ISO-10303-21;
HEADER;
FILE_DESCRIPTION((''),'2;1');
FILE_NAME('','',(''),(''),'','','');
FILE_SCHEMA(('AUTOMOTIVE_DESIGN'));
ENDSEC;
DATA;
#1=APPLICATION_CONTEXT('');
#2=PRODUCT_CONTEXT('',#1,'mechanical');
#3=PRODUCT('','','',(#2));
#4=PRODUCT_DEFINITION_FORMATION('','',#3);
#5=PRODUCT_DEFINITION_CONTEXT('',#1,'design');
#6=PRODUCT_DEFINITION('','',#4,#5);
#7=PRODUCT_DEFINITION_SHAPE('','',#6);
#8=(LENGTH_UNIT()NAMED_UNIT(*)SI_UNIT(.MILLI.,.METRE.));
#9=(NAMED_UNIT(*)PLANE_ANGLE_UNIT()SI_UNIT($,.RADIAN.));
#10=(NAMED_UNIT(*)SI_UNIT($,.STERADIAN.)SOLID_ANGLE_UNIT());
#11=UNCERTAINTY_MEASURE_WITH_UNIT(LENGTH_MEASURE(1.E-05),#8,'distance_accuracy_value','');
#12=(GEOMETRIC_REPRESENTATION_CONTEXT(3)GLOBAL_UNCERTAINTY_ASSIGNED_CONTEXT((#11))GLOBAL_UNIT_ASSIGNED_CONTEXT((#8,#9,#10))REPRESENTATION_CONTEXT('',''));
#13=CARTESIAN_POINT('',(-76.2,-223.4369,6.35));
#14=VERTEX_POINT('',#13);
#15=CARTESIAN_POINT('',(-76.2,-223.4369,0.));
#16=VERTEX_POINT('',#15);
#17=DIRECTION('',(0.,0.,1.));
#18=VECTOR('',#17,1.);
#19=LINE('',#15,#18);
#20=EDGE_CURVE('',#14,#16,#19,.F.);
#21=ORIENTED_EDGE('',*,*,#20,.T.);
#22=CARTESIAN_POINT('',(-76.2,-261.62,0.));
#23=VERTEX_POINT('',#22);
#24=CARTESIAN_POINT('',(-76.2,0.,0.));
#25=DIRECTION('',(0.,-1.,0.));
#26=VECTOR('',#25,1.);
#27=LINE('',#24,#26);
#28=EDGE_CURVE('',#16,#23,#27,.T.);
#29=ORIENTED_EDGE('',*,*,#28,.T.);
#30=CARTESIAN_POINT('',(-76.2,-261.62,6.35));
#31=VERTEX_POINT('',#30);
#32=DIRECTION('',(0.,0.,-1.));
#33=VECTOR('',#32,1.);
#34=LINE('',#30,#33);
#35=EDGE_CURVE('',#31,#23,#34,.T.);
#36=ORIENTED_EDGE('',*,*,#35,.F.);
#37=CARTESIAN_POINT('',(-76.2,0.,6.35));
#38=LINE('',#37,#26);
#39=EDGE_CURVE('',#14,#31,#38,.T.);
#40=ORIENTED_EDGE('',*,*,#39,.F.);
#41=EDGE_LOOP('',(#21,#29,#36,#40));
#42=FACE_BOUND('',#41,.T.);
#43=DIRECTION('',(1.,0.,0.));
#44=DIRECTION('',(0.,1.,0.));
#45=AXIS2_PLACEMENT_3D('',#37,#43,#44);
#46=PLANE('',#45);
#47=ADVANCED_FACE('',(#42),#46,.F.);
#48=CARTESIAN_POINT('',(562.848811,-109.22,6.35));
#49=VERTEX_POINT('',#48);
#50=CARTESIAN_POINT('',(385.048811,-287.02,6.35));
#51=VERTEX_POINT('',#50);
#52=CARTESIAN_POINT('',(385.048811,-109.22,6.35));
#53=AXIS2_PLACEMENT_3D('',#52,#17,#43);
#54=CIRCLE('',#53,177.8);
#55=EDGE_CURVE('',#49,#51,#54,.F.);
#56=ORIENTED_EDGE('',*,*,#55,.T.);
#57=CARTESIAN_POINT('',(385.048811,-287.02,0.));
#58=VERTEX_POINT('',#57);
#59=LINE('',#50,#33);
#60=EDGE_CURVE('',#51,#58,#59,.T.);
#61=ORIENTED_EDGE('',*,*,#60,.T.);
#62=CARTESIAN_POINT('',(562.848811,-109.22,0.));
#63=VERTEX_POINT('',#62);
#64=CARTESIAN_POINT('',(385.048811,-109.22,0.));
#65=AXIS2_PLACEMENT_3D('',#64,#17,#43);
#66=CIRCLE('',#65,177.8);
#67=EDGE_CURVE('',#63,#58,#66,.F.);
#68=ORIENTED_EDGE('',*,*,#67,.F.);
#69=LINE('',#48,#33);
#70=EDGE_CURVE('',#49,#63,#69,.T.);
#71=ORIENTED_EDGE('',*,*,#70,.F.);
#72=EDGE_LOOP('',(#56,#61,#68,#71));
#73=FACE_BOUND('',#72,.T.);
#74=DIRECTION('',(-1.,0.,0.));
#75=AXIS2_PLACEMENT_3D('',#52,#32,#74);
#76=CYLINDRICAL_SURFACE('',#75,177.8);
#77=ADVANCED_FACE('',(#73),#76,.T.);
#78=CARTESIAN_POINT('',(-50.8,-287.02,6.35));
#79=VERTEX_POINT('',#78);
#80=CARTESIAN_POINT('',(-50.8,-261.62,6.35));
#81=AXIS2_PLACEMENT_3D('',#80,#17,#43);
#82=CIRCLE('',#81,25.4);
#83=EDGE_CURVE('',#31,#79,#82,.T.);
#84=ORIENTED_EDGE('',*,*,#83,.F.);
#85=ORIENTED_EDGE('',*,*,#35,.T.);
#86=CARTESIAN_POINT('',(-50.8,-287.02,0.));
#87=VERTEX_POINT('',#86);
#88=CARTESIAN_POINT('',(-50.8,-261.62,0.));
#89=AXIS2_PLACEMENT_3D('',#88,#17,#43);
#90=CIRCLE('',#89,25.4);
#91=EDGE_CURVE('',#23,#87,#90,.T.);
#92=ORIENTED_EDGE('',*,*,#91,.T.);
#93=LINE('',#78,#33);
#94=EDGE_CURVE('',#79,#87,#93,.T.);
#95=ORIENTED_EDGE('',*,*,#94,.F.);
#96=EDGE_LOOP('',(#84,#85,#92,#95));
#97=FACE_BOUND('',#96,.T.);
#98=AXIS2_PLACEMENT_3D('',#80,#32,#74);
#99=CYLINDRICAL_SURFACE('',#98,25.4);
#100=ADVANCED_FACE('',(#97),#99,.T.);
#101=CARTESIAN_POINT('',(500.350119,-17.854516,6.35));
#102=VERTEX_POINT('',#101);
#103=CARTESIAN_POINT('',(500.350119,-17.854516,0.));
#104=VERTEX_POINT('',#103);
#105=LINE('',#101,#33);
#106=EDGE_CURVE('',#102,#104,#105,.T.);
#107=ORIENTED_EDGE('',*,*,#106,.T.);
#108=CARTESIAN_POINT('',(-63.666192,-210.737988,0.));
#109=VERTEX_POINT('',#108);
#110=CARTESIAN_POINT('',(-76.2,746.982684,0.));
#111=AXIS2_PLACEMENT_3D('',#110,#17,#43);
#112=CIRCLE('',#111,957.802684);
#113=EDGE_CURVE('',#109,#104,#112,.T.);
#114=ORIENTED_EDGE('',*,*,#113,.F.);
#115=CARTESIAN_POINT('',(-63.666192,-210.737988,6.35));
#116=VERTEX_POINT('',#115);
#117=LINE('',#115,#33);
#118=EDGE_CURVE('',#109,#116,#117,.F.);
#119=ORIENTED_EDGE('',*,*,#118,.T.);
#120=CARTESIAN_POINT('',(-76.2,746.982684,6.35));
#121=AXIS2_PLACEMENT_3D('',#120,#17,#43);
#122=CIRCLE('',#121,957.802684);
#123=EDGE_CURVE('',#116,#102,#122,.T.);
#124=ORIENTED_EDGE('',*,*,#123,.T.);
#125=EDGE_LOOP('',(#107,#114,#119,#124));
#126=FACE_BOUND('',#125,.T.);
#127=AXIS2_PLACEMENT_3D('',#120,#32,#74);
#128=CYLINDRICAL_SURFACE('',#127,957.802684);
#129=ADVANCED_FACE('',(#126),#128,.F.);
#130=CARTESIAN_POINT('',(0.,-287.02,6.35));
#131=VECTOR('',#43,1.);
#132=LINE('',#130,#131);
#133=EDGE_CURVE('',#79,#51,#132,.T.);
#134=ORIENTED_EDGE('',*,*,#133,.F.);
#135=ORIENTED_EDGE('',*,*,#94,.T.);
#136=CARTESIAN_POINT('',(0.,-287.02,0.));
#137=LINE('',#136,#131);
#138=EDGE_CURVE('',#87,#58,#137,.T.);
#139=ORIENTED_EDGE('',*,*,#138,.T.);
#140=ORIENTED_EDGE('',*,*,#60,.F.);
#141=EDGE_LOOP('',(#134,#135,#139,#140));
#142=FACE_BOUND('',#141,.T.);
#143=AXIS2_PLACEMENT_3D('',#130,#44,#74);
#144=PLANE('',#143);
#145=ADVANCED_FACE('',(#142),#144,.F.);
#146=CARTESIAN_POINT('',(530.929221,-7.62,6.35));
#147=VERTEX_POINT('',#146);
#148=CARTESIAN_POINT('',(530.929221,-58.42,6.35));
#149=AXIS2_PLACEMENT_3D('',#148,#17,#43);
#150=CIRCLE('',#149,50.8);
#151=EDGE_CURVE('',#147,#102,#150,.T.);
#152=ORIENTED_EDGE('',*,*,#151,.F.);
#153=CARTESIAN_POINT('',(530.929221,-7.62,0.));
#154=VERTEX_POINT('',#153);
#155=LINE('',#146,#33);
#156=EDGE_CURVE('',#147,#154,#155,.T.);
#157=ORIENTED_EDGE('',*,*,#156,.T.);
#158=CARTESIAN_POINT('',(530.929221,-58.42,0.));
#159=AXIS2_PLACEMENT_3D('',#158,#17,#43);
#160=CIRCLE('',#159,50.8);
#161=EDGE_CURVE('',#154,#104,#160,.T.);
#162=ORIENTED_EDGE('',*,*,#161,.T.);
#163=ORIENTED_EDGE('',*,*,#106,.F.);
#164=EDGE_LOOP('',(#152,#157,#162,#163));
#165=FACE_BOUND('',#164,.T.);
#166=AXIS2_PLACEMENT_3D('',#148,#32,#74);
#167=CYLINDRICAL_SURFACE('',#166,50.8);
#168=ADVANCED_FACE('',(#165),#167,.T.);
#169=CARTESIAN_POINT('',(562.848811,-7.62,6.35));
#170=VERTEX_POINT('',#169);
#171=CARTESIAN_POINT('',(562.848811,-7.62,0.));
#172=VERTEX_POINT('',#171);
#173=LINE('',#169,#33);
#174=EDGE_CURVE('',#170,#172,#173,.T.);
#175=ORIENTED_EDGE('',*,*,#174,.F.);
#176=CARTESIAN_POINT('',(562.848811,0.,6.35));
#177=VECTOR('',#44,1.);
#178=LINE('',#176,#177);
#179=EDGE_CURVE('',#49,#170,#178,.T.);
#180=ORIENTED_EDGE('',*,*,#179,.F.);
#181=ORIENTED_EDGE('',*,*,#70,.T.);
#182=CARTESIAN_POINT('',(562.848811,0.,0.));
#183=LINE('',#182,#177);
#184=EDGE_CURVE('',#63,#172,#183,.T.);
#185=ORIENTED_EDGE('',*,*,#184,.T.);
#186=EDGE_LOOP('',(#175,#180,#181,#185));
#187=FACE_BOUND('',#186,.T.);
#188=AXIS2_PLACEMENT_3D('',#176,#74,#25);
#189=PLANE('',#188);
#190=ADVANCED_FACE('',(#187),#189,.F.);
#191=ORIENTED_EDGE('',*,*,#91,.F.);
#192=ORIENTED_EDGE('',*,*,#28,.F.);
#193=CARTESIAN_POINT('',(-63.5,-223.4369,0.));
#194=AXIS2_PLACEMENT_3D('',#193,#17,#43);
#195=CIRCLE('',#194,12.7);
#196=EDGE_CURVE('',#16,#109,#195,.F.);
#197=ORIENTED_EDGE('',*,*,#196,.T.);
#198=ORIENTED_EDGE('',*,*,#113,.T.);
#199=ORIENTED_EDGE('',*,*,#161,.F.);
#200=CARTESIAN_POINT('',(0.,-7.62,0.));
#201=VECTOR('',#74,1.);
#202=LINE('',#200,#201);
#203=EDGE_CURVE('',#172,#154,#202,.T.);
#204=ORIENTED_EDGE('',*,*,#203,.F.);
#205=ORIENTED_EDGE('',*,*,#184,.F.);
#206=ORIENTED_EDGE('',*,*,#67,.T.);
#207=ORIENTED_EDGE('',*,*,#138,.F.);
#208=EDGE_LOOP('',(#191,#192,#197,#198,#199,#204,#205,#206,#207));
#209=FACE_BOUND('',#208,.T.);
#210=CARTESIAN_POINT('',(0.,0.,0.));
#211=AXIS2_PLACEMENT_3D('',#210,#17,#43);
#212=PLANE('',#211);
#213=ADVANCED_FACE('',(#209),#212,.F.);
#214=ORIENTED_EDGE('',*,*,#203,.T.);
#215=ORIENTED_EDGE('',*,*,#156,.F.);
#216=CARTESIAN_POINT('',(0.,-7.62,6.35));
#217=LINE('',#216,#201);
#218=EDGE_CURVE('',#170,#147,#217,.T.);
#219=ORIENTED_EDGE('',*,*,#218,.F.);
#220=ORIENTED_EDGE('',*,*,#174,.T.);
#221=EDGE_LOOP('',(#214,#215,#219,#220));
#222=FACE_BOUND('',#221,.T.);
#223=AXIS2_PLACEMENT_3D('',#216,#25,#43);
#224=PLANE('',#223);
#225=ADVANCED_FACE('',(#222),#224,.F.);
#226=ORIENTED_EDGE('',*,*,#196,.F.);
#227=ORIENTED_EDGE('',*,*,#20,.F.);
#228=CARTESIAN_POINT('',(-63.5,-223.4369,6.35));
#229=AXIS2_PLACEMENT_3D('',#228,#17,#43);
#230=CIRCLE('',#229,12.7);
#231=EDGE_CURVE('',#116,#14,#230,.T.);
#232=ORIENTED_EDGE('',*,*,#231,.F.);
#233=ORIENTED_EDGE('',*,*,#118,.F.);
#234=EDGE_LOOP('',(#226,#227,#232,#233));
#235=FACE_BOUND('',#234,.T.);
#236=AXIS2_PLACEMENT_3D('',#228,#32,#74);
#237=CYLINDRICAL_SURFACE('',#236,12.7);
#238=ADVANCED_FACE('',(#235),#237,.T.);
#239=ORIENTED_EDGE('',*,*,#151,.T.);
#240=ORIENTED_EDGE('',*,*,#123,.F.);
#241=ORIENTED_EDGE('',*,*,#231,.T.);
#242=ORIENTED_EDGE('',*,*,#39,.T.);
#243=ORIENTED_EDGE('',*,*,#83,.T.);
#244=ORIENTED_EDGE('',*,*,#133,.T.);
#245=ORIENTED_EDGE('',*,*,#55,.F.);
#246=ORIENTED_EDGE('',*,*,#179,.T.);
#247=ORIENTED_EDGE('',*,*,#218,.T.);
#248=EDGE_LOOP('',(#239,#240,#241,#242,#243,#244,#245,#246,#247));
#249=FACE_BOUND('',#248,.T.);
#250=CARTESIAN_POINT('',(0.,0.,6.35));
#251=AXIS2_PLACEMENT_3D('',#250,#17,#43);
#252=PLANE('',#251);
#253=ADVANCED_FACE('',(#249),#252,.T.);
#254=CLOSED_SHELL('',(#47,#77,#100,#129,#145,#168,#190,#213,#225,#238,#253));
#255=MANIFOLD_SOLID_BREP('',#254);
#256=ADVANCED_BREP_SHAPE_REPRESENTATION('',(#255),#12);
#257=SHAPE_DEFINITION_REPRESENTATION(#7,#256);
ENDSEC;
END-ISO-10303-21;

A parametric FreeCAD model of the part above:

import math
import FreeCAD as App
import Part
import Sketcher
Q = App.Units.Quantity


def edges_at(feature, points):
    """Names of the edges that pass closest to the given points."""
    edges = feature.Shape.Edges
    near = lambda p: min(range(len(edges)), key=lambda i: edges[i].distToShape(Part.Vertex(*p))[0])
    return sorted({f"Edge{near(p) + 1}" for p in points})

doc = App.newDocument("Part")
body = doc.addObject("PartDesign::Body", "Body")

# Sketch on XY plane
sketch1 = body.newObject("Sketcher::SketchObject", "Sketch")
sketch1.AttachmentSupport = (doc.getObject("XY_Plane"), [""])
sketch1.MapMode = "FlatFace"
sketch1.addGeometry(Part.LineSegment(App.Vector(-76, -211, 0), App.Vector(-76, -262, 0)), False)
sketch1.addGeometry(Part.ArcOfCircle(Part.Circle(App.Vector(-51, -262, 0), App.Vector(0, 0, 1), 25), math.radians(180), math.radians(270)), False)
sketch1.addGeometry(Part.LineSegment(App.Vector(-51, -287, 0), App.Vector(385, -287, 0)), False)
sketch1.addGeometry(Part.ArcOfCircle(Part.Circle(App.Vector(385, -109, 0), App.Vector(0, 0, 1), 178), math.radians(-90), math.radians(0)), False)
sketch1.addGeometry(Part.LineSegment(App.Vector(563, -109, 0), App.Vector(563, -8, 0)), False)
sketch1.addGeometry(Part.LineSegment(App.Vector(563, -8, 0), App.Vector(531, -8, 0)), False)
sketch1.addGeometry(Part.ArcOfCircle(Part.Circle(App.Vector(531, -58, 0), App.Vector(0, 0, 1), 51), math.radians(90), math.radians(127)), False)
sketch1.addGeometry(Part.ArcOfCircle(Part.Circle(App.Vector(-76, 747, 0), App.Vector(0, 0, 1), 958), math.radians(-90), math.radians(-53)), False)
sketch1.addConstraint(Sketcher.Constraint("Tangent", 0, 2, 1, 1))
sketch1.addConstraint(Sketcher.Constraint("Tangent", 1, 2, 2, 1))
sketch1.addConstraint(Sketcher.Constraint("Tangent", 2, 2, 3, 1))
sketch1.addConstraint(Sketcher.Constraint("Tangent", 3, 2, 4, 1))
sketch1.addConstraint(Sketcher.Constraint("Coincident", 4, 2, 5, 1))
sketch1.addConstraint(Sketcher.Constraint("Tangent", 5, 2, 6, 1))
sketch1.addConstraint(Sketcher.Constraint("Tangent", 6, 2, 7, 2))
sketch1.addConstraint(Sketcher.Constraint("Coincident", 7, 1, 0, 1))
sketch1.addConstraint(Sketcher.Constraint("Vertical", 0))
sketch1.addConstraint(Sketcher.Constraint("Horizontal", 2))
sketch1.addConstraint(Sketcher.Constraint("Vertical", 4))
sketch1.addConstraint(Sketcher.Constraint("Horizontal", 5))
sketch1.addConstraint(Sketcher.Constraint("Vertical", 7, 3, 0, 2))
sketch1.addConstraint(Sketcher.Constraint("Radius", 1, Q("1 in")))
sketch1.addConstraint(Sketcher.Constraint("Radius", 3, Q("7 in")))
sketch1.addConstraint(Sketcher.Constraint("Radius", 6, Q("2 in")))
sketch1.addConstraint(Sketcher.Constraint("DistanceY", 0, 2, 0, 1, Q("2 in")))
sketch1.addConstraint(Sketcher.Constraint("DistanceY", 4, 1, 4, 2, Q("4 in")))
sketch1.addConstraint(Sketcher.Constraint("DistanceX", 1, 3, -1, 1, Q("2 in")))
sketch1.addConstraint(Sketcher.Constraint("DistanceY", 1, 3, -1, 1, Q("10.3 in")))
sketch1.addConstraint(Sketcher.Constraint("Radius", 7, 957.802684))
sketch1.addConstraint(Sketcher.Constraint("DistanceX", 2, 1, 2, 2, 435.848811))
pad1 = body.newObject("PartDesign::Pad", "Pad")
pad1.Profile = sketch1
pad1.Length = Q("0.25 in")
doc.recompute()

fillet = body.newObject("PartDesign::Fillet", "Fillet")
fillet.Base = (pad1, edges_at(pad1, [(-76.2, -210.82, 3.175)]))
fillet.Radius = Q("0.5 in")

doc.recompute()
